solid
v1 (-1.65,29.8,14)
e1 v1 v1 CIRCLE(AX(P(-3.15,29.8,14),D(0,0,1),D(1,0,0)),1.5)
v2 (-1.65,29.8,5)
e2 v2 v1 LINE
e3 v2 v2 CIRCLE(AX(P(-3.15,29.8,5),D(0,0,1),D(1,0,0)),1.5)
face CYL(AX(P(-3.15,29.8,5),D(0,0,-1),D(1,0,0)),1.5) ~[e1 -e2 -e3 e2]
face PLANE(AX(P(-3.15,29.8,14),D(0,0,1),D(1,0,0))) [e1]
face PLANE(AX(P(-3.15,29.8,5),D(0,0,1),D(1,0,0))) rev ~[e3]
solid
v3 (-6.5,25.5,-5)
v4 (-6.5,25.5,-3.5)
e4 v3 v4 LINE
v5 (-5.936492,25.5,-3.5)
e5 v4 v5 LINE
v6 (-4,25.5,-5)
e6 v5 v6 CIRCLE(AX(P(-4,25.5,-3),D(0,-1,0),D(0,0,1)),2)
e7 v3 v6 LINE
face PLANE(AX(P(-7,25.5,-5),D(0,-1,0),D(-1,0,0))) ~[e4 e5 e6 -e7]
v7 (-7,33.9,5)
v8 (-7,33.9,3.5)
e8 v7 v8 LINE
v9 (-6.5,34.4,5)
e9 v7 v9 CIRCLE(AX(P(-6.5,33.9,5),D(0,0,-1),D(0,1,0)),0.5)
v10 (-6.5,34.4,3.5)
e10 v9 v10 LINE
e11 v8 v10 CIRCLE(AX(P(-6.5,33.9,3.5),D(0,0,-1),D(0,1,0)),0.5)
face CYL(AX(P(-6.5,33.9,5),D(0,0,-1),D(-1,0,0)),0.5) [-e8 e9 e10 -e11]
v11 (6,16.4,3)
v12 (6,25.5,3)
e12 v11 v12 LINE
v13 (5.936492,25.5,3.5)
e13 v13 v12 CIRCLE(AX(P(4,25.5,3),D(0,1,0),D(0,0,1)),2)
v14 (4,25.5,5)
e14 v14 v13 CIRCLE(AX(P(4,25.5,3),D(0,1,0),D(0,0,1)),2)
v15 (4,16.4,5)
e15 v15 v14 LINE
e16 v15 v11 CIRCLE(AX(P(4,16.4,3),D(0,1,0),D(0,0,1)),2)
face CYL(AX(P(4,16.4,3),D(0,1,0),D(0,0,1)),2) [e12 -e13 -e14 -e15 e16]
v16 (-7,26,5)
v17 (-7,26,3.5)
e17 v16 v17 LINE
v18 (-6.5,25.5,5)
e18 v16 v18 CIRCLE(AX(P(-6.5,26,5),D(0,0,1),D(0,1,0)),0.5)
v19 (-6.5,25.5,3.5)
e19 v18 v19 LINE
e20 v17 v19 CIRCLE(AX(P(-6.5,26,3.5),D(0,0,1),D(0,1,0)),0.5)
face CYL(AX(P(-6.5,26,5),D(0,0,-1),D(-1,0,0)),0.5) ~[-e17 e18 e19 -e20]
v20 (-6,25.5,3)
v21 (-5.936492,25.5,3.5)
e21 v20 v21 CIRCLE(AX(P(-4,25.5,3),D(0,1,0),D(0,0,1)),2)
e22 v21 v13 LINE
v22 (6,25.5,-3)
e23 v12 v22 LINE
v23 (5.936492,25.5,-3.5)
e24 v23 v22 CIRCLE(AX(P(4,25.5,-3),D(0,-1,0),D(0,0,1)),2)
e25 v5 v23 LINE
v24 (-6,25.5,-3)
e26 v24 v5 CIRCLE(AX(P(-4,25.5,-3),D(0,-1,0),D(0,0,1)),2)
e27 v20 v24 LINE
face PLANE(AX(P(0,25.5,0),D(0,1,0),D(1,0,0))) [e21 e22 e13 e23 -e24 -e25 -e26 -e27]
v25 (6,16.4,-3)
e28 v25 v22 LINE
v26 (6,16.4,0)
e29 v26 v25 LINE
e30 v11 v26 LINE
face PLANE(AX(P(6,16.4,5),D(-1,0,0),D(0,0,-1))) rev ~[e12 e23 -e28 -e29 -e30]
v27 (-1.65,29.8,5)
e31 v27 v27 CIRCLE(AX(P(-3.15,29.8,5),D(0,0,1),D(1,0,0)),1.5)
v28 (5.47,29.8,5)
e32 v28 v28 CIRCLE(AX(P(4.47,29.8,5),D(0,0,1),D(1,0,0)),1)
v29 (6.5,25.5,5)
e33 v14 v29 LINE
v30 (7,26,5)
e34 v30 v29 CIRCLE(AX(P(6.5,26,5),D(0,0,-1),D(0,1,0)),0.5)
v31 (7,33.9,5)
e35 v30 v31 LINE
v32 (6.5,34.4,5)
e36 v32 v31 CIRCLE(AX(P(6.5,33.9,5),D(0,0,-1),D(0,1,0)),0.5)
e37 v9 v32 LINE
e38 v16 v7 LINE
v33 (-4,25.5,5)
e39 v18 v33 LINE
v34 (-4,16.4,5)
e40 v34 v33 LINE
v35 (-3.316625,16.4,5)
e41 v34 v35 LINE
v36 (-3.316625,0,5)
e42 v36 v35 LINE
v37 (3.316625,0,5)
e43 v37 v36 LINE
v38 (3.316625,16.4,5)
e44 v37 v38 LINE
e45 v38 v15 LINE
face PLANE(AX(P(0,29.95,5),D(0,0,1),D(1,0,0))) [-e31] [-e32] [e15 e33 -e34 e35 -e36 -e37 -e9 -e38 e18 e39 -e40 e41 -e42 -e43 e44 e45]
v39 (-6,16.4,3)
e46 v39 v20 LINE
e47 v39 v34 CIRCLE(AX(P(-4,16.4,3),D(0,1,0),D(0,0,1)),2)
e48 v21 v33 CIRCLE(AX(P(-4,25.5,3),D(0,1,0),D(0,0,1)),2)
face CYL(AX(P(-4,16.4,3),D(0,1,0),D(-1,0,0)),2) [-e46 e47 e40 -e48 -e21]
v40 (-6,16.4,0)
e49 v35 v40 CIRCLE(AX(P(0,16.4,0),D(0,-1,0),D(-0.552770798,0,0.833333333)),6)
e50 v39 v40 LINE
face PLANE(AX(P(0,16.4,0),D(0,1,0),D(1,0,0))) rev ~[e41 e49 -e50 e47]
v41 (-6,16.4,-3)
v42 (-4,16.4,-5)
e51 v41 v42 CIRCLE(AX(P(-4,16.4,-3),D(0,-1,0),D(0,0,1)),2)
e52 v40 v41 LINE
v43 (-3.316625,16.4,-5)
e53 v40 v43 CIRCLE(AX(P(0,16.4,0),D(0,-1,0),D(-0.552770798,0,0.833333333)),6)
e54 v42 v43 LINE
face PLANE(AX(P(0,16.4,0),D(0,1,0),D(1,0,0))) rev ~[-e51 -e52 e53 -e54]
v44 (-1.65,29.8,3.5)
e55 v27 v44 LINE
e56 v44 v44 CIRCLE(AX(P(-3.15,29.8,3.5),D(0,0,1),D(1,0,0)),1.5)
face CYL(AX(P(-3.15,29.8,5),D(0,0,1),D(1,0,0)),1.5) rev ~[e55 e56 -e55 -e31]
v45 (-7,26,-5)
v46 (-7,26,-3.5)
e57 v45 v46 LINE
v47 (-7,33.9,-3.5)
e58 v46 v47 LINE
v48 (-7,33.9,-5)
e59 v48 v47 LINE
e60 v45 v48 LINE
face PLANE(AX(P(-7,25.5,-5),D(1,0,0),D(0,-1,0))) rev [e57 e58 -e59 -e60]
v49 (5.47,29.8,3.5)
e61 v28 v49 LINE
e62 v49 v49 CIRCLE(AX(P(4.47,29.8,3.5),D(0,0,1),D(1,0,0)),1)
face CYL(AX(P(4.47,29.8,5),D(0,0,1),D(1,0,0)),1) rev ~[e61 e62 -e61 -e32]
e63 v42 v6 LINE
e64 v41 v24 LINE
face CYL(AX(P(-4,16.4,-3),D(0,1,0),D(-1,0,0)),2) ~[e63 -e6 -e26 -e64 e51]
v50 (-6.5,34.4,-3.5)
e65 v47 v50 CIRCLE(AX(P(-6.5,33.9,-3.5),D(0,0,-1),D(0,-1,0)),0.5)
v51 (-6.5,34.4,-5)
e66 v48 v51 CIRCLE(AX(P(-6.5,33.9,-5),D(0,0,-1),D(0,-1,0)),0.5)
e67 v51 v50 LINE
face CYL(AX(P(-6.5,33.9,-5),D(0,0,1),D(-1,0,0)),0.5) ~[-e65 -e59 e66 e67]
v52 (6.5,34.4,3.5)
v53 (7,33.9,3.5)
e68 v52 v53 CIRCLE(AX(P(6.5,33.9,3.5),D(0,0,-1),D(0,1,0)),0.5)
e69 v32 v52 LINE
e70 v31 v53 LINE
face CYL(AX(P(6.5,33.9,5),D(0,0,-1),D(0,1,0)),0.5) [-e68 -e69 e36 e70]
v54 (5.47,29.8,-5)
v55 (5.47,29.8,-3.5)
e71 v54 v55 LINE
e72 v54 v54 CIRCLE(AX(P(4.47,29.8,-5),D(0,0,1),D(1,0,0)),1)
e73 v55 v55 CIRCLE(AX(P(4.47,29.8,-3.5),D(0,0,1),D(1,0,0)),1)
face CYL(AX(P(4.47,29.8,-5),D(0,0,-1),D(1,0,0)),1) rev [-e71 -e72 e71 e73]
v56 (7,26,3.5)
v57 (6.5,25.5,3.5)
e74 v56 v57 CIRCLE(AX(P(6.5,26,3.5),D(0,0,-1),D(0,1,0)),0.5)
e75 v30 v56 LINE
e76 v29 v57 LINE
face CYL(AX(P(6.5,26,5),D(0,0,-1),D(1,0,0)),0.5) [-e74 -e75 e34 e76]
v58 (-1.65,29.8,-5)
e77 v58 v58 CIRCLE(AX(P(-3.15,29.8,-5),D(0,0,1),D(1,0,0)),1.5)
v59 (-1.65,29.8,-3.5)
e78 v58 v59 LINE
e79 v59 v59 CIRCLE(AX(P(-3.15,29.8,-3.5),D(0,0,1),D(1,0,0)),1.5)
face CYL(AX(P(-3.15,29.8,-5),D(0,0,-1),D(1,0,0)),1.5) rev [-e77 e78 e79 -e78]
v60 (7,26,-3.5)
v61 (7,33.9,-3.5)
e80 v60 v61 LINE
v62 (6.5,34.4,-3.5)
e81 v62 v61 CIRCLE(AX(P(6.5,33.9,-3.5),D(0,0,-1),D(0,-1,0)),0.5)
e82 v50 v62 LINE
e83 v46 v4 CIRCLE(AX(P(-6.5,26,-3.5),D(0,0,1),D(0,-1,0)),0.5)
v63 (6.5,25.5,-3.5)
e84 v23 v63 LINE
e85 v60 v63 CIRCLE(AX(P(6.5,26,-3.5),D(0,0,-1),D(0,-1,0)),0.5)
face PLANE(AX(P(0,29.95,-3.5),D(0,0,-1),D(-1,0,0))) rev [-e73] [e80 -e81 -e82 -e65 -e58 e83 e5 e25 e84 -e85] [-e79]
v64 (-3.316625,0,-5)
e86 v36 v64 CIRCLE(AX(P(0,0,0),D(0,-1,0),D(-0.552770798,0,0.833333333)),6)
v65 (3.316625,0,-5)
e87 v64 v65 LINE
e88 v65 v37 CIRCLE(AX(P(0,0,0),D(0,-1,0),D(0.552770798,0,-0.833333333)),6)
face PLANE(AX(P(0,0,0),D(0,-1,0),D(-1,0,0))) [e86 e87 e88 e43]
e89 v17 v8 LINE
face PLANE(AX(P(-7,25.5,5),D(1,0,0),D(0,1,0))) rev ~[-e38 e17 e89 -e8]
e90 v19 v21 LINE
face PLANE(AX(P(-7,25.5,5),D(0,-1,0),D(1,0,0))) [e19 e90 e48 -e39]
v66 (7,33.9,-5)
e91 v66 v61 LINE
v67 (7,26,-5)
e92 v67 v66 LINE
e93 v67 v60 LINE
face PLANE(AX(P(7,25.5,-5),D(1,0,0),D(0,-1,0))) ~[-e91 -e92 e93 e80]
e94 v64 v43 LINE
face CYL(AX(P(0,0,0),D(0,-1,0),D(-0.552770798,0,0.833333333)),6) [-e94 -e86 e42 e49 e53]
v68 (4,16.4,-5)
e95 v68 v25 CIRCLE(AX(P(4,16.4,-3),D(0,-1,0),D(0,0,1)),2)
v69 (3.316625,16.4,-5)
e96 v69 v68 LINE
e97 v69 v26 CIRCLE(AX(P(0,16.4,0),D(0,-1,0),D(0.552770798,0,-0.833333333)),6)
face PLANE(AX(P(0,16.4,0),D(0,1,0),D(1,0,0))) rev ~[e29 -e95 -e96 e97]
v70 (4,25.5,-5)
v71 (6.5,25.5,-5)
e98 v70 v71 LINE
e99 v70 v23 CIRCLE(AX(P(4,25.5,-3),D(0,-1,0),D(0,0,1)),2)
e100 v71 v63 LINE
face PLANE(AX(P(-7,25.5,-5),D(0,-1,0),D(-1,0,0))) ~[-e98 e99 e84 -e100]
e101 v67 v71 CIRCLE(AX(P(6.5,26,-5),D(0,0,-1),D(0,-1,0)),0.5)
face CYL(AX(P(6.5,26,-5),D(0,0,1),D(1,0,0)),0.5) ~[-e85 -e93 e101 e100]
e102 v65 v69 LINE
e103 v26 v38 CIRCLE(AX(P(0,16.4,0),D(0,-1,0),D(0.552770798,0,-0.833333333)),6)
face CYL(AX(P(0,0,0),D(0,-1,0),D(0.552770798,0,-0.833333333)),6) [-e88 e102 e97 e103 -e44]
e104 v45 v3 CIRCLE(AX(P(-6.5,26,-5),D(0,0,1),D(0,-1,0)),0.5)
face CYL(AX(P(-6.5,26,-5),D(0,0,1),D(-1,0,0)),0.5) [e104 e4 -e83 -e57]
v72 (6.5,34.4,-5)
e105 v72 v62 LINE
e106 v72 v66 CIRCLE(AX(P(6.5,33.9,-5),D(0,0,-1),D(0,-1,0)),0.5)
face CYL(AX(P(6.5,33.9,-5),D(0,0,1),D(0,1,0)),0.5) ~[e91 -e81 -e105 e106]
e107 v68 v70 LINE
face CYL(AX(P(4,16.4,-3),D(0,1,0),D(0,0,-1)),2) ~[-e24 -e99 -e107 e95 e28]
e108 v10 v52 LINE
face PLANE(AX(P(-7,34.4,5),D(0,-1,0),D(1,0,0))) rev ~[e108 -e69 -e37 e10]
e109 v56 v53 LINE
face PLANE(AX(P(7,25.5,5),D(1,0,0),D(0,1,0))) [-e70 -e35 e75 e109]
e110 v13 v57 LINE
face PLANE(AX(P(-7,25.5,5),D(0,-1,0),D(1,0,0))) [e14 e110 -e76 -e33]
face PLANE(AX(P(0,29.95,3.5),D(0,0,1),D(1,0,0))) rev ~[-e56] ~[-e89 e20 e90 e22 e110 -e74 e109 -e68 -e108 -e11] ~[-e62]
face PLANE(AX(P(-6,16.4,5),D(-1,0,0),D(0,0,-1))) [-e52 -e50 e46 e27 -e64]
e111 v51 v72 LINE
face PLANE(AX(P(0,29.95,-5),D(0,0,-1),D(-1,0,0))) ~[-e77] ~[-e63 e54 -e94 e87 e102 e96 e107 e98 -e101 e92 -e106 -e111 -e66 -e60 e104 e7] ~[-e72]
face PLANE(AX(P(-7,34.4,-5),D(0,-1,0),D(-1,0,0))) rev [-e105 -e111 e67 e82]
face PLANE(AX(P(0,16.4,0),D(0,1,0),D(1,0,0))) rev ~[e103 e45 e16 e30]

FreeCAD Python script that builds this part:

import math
import FreeCAD as App
import Part
import Sketcher
from FreeCAD import Vector


def edges_at(feature, points):
    """Names of the edges that pass closest to the given points."""
    edges = feature.Shape.Edges
    near = lambda p: min(range(len(edges)), key=lambda i: edges[i].distToShape(Part.Vertex(*p))[0])
    return sorted({f"Edge{near(p) + 1}" for p in points})

doc = App.newDocument("Part")
params = doc.addObject("Spreadsheet::Sheet", "Params")
for row, (alias, value) in enumerate([
    ("sketch1_radius", "6 mm"),
    ("pad1_length", "16.4 mm"),
    ("sketch2_width", "12 mm"),
    ("sketch2_height", "10 mm"),
    ("pad2_length", "9.1 mm"),
    ("fillet_radius", "2 mm"),
    ("sketch3_diameter", "3 mm"),
    ("sketch3_diameter2", "2 mm"),
    ("sketch3_width", "14 mm"),
    ("sketch3_height", "8.9 mm"),
    ("pad3_length", "1.5 mm"),
    ("fillet2_radius", "0.5 mm"),
    ("fillet3_radius", "0.5 mm"),
    ("sketch4_diameter", "3 mm"),
    ("pad4_length", "9 mm"),
], start=1):
    params.set(f"A{row}", alias)
    params.set(f"B{row}", "=" + value)
    params.setAlias(f"B{row}", alias)

body = doc.addObject("PartDesign::Body", "Body")

# Sketch on XZ plane
sketch1 = doc.addObject("Sketcher::SketchObject", "Sketch")
body.addObject(sketch1)
sketch1.AttachmentSupport = (doc.XZ_Plane, [""])
sketch1.MapMode = "FlatFace"
sketch1.addGeometry([
    Part.LineSegment(Vector(3, -5, 0), Vector(-3, -5, 0)),
    Part.ArcOfCircle(Part.Circle(Vector(0, 0, 0), Vector(0, 0, 1), 6), math.radians(124), math.radians(236)),
    Part.LineSegment(Vector(-3, 5, 0), Vector(3, 5, 0)),
    Part.ArcOfCircle(Part.Circle(Vector(0, 0, 0), Vector(0, 0, 1), 6), math.radians(-56), math.radians(56)),
], False)
sketch1.addConstraint([
    Sketcher.Constraint("Coincident", 0, 2, 1, 2),
    Sketcher.Constraint("Coincident", 1, 1, 2, 1),
    Sketcher.Constraint("Coincident", 2, 2, 3, 2),
    Sketcher.Constraint("Coincident", 3, 1, 0, 1),
    Sketcher.Constraint("Horizontal", 0),
    Sketcher.Constraint("Horizontal", 2),
    Sketcher.Constraint("Coincident", 1, 3, -1, 1),
    Sketcher.Constraint("Coincident", 3, 3, -1, 1),
    Sketcher.Constraint("Equal", 1, 3),
    Sketcher.Constraint("Vertical", 0, 2, 1, 1),
    Sketcher.Constraint("Radius", 1, 6.0),
    Sketcher.Constraint("DistanceY", 0, 2, -1, 1, 5.0),
])
sketch1.setExpression("Constraints[10]", "Params.sketch1_radius")
pad1 = doc.addObject("PartDesign::Pad", "Pad")
body.addObject(pad1)
pad1.Profile = sketch1
pad1.setExpression("Length", "Params.pad1_length")
pad1.Reversed = True

# Sketch on XZ plane
sketch2 = doc.addObject("Sketcher::SketchObject", "Sketch001")
body.addObject(sketch2)
sketch2.AttachmentSupport = (doc.XZ_Plane, [""])
sketch2.MapMode = "FlatFace"
sketch2.AttachmentOffset = App.Placement(Vector(0, 0, -16.4), App.Rotation())
sketch2.addGeometry([
    Part.LineSegment(Vector(-6, -5, 0), Vector(-6, 5, 0)),
    Part.LineSegment(Vector(-6, 5, 0), Vector(6, 5, 0)),
    Part.LineSegment(Vector(6, 5, 0), Vector(6, -5, 0)),
    Part.LineSegment(Vector(6, -5, 0), Vector(-6, -5, 0)),
], False)
sketch2.addConstraint([
    Sketcher.Constraint("Coincident", 0, 2, 1, 1),
    Sketcher.Constraint("Coincident", 1, 2, 2, 1),
    Sketcher.Constraint("Coincident", 2, 2, 3, 1),
    Sketcher.Constraint("Coincident", 3, 2, 0, 1),
    Sketcher.Constraint("Vertical", 0),
    Sketcher.Constraint("Horizontal", 1),
    Sketcher.Constraint("Vertical", 2),
    Sketcher.Constraint("Horizontal", 3),
    Sketcher.Constraint("Symmetric", 0, 2, 2, 2, -1, 1),
    Sketcher.Constraint("DistanceX", 1, 1, 1, 2, 12.0),
    Sketcher.Constraint("DistanceY", 0, 1, 0, 2, 10.0),
])
sketch2.setExpression("Constraints[9]", "Params.sketch2_width")
sketch2.setExpression("Constraints[10]", "Params.sketch2_height")
pad2 = doc.addObject("PartDesign::Pad", "Pad001")
body.addObject(pad2)
pad2.Profile = sketch2
pad2.setExpression("Length", "Params.pad2_length")
pad2.Reversed = True
doc.recompute()

fillet = doc.addObject("PartDesign::Fillet", "Fillet")
body.addObject(fillet)
fillet.Base = (pad2, edges_at(pad2, [
    (-6, 20.95, -5),
    (-6, 20.95, 5),
    (6, 20.95, 5),
    (6, 20.95, -5),
]))
fillet.setExpression("Radius", "Params.fillet_radius")

# Sketch on XY plane
sketch3 = doc.addObject("Sketcher::SketchObject", "Sketch002")
body.addObject(sketch3)
sketch3.AttachmentSupport = (doc.XY_Plane, [""])
sketch3.MapMode = "FlatFace"
sketch3.AttachmentOffset = App.Placement(Vector(0, 0, 5), App.Rotation())
sketch3.addGeometry([
    Part.LineSegment(Vector(-7, 34.4, 0), Vector(-7, 25.5, 0)),  # 0
    Part.LineSegment(Vector(-7, 25.5, 0), Vector(7, 25.5, 0)),  # 1
    Part.LineSegment(Vector(7, 25.5, 0), Vector(7, 34.4, 0)),  # 2
    Part.LineSegment(Vector(7, 34.4, 0), Vector(-7, 34.4, 0)),  # 3
    Part.Circle(Vector(-3.1, 29.8, 0), Vector(0, 0, 1), 1.5),  # 4
    Part.Circle(Vector(4.5, 29.8, 0), Vector(0, 0, 1), 1),  # 5
], False)
sketch3.addConstraint([
    Sketcher.Constraint("Coincident", 0, 2, 1, 1),
    Sketcher.Constraint("Coincident", 1, 2, 2, 1),
    Sketcher.Constraint("Coincident", 2, 2, 3, 1),
    Sketcher.Constraint("Coincident", 3, 2, 0, 1),
    Sketcher.Constraint("Vertical", 0),
    Sketcher.Constraint("Horizontal", 1),
    Sketcher.Constraint("Vertical", 2),
    Sketcher.Constraint("Horizontal", 3),
    Sketcher.Constraint("Horizontal", 4, 3, 5, 3),
    Sketcher.Constraint("Diameter", 4, 3.0),
    Sketcher.Constraint("Diameter", 5, 2.0),
    Sketcher.Constraint("DistanceX", 1, 1, 1, 2, 14.0),
    Sketcher.Constraint("DistanceY", 0, 2, 0, 1, 8.9),
    Sketcher.Constraint("DistanceX", 0, 2, -1, 1, 7.0),
    Sketcher.Constraint("DistanceY", -1, 1, 4, 3, 29.8),
    Sketcher.Constraint("DistanceY", -1, 1, 0, 2, 25.5),
    Sketcher.Constraint("DistanceX", 4, 3, -1, 1, 3.15),
    Sketcher.Constraint("DistanceX", -1, 1, 5, 3, 4.47),
])
sketch3.setExpression("Constraints[9]", "Params.sketch3_diameter")
sketch3.setExpression("Constraints[10]", "Params.sketch3_diameter2")
sketch3.setExpression("Constraints[11]", "Params.sketch3_width")
sketch3.setExpression("Constraints[12]", "Params.sketch3_height")
pad3 = doc.addObject("PartDesign::Pad", "Pad002")
body.addObject(pad3)
pad3.Profile = sketch3
pad3.setExpression("Length", "Params.pad3_length")
pad3.Reversed = True
doc.recompute()

fillet2 = doc.addObject("PartDesign::Fillet", "Fillet001")
body.addObject(fillet2)
fillet2.Base = (pad3, edges_at(pad3, [
    (-7, 25.5, 4.25),
    (-7, 34.4, 4.25),
    (7, 34.4, 4.25),
    (7, 25.5, 4.25),
]))
fillet2.setExpression("Radius", "Params.fillet2_radius")
doc.recompute()

mirrored = doc.addObject("PartDesign::Mirrored", "Mirrored")
body.addObject(mirrored)
mirrored.Originals = [pad3]
mirrored.MirrorPlane = (doc.XY_Plane, [""])
body.Tip = mirrored
doc.recompute()

fillet3 = doc.addObject("PartDesign::Fillet", "Fillet002")
body.addObject(fillet3)
fillet3.Base = (mirrored, edges_at(mirrored, [
    (-7, 25.5, -4.25),
    (-7, 34.4, -4.25),
    (7, 34.4, -4.25),
    (7, 25.5, -4.25),
]))
fillet3.setExpression("Radius", "Params.fillet3_radius")
body2 = doc.addObject("PartDesign::Body", "Body001")

# Sketch on XY plane
sketch4 = doc.addObject("Sketcher::SketchObject", "Sketch003")
body2.addObject(sketch4)
sketch4.AttachmentSupport = (doc.getObject("XY_Plane001"), [""])
sketch4.MapMode = "FlatFace"
sketch4.AttachmentOffset = App.Placement(Vector(0, 0, 5), App.Rotation())
sketch4.addGeometry(Part.Circle(Vector(-3.1, 29.8, 0), Vector(0, 0, 1), 1.5), False)
sketch4.addConstraint([
    Sketcher.Constraint("Diameter", 0, 3.0),
    Sketcher.Constraint("DistanceY", -1, 1, 0, 3, 29.8),
    Sketcher.Constraint("DistanceX", 0, 3, -1, 1, 3.15),
])
sketch4.setExpression("Constraints[0]", "Params.sketch4_diameter")
pad4 = doc.addObject("PartDesign::Pad", "Pad003")
body2.addObject(pad4)
pad4.Profile = sketch4
pad4.setExpression("Length", "Params.pad4_length")

doc.recompute()
